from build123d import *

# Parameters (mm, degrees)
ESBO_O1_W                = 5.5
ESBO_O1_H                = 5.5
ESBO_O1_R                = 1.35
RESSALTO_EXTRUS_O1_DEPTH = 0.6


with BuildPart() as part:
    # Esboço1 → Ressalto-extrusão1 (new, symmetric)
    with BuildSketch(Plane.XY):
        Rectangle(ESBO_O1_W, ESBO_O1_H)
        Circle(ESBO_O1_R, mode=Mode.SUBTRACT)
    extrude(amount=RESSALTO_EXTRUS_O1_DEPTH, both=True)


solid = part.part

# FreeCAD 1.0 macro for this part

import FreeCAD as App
import Part
import Sketcher

V = App.Vector


def add_polygon(sketch, points):
    """Adds a closed chain of lines whose ends are joined by coincident constraints."""
    first, n = sketch.GeometryCount, len(points)
    for a, b in zip(points, points[1:] + points[:1]):
        sketch.addGeometry(Part.LineSegment(App.Vector(*a, 0), App.Vector(*b, 0)), False)
    for i in range(n):
        sketch.addConstraint(Sketcher.Constraint("Coincident", first + i, 2, first + (i + 1) % n, 1))

doc = App.newDocument("Part")
body = doc.addObject("PartDesign::Body", "Body")

# Sketch on XY plane
sketch1 = body.newObject("Sketcher::SketchObject", "Sketch")
sketch1.AttachmentSupport = (doc.getObject("XY_Plane"), [""])
sketch1.MapMode = "FlatFace"
add_polygon(sketch1, [(-2.75, 2.75), (-2.75, -2.75), (2.75, -2.75), (2.75, 2.75)])  # lines 0-3
sketch1.addGeometry(Part.Circle(V(0, 0, 0), V(0, 0, 1), 1.35), False)  # 4
sketch1.addConstraint([
    Sketcher.Constraint("Vertical", 0),
    Sketcher.Constraint("Horizontal", 1),
    Sketcher.Constraint("Vertical", 2),
    Sketcher.Constraint("Horizontal", 3),
    Sketcher.Constraint("Coincident", 4, 3, -1, 1),
    Sketcher.Constraint("Symmetric", 0, 2, 2, 2, -1, 1),
    Sketcher.Constraint("Equal", 3, 0),
    Sketcher.Constraint("Diameter", 4, 2.7),
    Sketcher.Constraint("DistanceX", 1, 1, 1, 2, 5.5),
])
pad1 = body.newObject("PartDesign::Pad", "Pad")
pad1.Profile = sketch1
pad1.Length = 1.2
pad1.Midplane = True

doc.recompute()
